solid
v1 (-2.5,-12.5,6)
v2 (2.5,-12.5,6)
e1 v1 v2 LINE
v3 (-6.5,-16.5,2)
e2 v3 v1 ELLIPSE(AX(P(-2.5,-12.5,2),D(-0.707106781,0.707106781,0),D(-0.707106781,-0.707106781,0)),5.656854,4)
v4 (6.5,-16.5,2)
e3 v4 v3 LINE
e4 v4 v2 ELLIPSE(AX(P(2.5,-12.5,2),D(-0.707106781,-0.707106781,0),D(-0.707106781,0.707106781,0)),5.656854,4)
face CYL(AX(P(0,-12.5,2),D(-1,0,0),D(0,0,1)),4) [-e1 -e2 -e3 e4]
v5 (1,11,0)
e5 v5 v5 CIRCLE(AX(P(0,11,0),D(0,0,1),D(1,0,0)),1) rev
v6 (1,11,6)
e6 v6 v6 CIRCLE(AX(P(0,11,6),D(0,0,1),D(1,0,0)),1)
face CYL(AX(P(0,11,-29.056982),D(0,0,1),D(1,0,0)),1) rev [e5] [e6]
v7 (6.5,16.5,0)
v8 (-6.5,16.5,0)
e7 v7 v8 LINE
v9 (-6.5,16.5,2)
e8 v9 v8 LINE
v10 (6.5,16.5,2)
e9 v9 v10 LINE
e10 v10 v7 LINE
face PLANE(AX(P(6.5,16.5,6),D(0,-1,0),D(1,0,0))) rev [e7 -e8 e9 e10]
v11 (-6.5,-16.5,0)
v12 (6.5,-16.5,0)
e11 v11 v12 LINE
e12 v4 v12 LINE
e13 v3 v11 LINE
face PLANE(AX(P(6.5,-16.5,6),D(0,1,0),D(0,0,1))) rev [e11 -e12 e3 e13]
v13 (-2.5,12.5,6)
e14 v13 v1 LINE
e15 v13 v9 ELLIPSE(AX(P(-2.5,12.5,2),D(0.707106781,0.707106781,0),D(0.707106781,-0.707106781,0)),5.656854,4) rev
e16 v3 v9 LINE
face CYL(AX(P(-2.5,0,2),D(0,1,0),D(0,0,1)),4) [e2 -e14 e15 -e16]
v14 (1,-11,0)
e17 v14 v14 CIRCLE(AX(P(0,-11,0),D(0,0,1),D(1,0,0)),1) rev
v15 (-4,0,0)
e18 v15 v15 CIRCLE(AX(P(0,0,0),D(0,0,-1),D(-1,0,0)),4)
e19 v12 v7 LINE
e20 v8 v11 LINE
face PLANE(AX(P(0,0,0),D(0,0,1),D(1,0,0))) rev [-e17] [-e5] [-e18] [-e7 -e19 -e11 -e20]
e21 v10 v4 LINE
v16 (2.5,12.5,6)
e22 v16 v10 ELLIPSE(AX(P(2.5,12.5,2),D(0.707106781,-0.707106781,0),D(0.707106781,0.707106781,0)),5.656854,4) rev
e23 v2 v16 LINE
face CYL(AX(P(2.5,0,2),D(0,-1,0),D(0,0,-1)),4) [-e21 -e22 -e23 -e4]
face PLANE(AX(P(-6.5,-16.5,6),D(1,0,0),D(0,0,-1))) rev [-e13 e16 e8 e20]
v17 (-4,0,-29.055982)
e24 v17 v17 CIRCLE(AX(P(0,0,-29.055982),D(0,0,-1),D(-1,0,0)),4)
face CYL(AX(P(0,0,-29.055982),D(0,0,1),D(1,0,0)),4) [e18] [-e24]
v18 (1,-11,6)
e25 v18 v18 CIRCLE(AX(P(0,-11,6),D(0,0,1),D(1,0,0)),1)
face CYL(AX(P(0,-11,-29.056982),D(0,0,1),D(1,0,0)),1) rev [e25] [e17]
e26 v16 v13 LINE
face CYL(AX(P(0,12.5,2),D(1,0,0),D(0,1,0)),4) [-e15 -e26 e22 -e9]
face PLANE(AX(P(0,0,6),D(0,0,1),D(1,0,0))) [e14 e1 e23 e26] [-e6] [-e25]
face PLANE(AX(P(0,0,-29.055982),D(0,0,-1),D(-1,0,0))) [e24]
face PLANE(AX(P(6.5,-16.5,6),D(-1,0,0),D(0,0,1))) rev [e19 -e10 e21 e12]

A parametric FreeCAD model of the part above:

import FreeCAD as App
import Part
import Sketcher

V = App.Vector
Q = App.Units.Quantity


def edges_at(feature, points):
    """Names of the edges that pass closest to the given points."""
    edges = feature.Shape.Edges
    near = lambda p: min(range(len(edges)), key=lambda i: edges[i].distToShape(Part.Vertex(*p))[0])
    return sorted({f"Edge{near(p) + 1}" for p in points})


def add_polygon(sketch, points):
    """Adds a closed chain of lines whose ends are joined by coincident constraints."""
    first, n = sketch.GeometryCount, len(points)
    for a, b in zip(points, points[1:] + points[:1]):
        sketch.addGeometry(Part.LineSegment(App.Vector(*a, 0), App.Vector(*b, 0)), False)
    for i in range(n):
        sketch.addConstraint(Sketcher.Constraint("Coincident", first + i, 2, first + (i + 1) % n, 1))

doc = App.newDocument("Part")
body = doc.addObject("PartDesign::Body", "Body")

# Sketch on XY plane
sketch1 = body.newObject("Sketcher::SketchObject", "Sketch")
sketch1.AttachmentSupport = (doc.getObject("XY_Plane"), [""])
sketch1.MapMode = "FlatFace"
add_polygon(sketch1, [(-6.5, 16.5), (-6.5, -16.5), (6.5, -16.5), (6.5, 16.5)])  # lines 0-3
sketch1.addConstraint(Sketcher.Constraint("Vertical", 0))
sketch1.addConstraint(Sketcher.Constraint("Horizontal", 1))
sketch1.addConstraint(Sketcher.Constraint("Vertical", 2))
sketch1.addConstraint(Sketcher.Constraint("Horizontal", 3))
sketch1.addConstraint(Sketcher.Constraint("Symmetric", 0, 2, 2, 2, -1, 1))
sketch1.addConstraint(Sketcher.Constraint("DistanceX", 1, 1, 1, 2, Q("13 mm")))
sketch1.addConstraint(Sketcher.Constraint("DistanceY", 0, 2, 0, 1, Q("33 mm")))
pad1 = body.newObject("PartDesign::Pad", "Pad")
pad1.Profile = sketch1
pad1.Length = 6

# Sketch on XY plane
sketch2 = body.newObject("Sketcher::SketchObject", "Sketch001")
sketch2.AttachmentSupport = (doc.getObject("XY_Plane"), [""])
sketch2.MapMode = "FlatFace"
sketch2.addGeometry(Part.Circle(V(0, 0, 0), V(0, 0, 1), 4), False)
sketch2.addConstraint(Sketcher.Constraint("Coincident", 0, 3, -1, 1))
sketch2.addConstraint(Sketcher.Constraint("Diameter", 0, Q("8 mm")))
pad2 = body.newObject("PartDesign::Pad", "Pad001")
pad2.Profile = sketch2
pad2.Length = 29.055982
pad2.Reversed = True

# Sketch on XY plane
sketch3 = body.newObject("Sketcher::SketchObject", "Sketch002")
sketch3.AttachmentSupport = (doc.getObject("XY_Plane"), [""])
sketch3.MapMode = "FlatFace"
sketch3.AttachmentOffset = App.Placement(V(0, 0, 6), App.Rotation())
sketch3.addGeometry(Part.Circle(V(0, 11, 0), V(0, 0, 1), 1), False)
sketch3.addConstraint(Sketcher.Constraint("PointOnObject", 0, 3, -2))
sketch3.addConstraint(Sketcher.Constraint("Diameter", 0, Q("2 mm")))
sketch3.addConstraint(Sketcher.Constraint("DistanceY", -1, 1, 0, 3, Q("11 mm")))
pocket1 = body.newObject("PartDesign::Pocket", "Pocket")
pocket1.Profile = sketch3
pocket1.Type = "UpToFirst"

# Sketch on XY plane
sketch4 = body.newObject("Sketcher::SketchObject", "Sketch003")
sketch4.AttachmentSupport = (doc.getObject("XY_Plane"), [""])
sketch4.MapMode = "FlatFace"
sketch4.AttachmentOffset = App.Placement(V(0, 0, 6), App.Rotation())
sketch4.addGeometry(Part.Circle(V(0, -11, 0), V(0, 0, 1), 1), False)
sketch4.addConstraint(Sketcher.Constraint("PointOnObject", 0, 3, -2))
sketch4.addConstraint(Sketcher.Constraint("Diameter", 0, Q("2 mm")))
sketch4.addConstraint(Sketcher.Constraint("DistanceY", 0, 3, -1, 1, Q("11 mm")))
pocket2 = body.newObject("PartDesign::Pocket", "Pocket001")
pocket2.Profile = sketch4
pocket2.Type = "UpToFirst"
doc.recompute()

fillet = body.newObject("PartDesign::Fillet", "Fillet")
fillet.Base = (pocket2, edges_at(pocket2, [
    (6.5, 0, 6),
    (0, 16.5, 6),
    (-6.5, 0, 6),
    (0, -16.5, 6),
]))
fillet.Radius = 4

doc.recompute()
